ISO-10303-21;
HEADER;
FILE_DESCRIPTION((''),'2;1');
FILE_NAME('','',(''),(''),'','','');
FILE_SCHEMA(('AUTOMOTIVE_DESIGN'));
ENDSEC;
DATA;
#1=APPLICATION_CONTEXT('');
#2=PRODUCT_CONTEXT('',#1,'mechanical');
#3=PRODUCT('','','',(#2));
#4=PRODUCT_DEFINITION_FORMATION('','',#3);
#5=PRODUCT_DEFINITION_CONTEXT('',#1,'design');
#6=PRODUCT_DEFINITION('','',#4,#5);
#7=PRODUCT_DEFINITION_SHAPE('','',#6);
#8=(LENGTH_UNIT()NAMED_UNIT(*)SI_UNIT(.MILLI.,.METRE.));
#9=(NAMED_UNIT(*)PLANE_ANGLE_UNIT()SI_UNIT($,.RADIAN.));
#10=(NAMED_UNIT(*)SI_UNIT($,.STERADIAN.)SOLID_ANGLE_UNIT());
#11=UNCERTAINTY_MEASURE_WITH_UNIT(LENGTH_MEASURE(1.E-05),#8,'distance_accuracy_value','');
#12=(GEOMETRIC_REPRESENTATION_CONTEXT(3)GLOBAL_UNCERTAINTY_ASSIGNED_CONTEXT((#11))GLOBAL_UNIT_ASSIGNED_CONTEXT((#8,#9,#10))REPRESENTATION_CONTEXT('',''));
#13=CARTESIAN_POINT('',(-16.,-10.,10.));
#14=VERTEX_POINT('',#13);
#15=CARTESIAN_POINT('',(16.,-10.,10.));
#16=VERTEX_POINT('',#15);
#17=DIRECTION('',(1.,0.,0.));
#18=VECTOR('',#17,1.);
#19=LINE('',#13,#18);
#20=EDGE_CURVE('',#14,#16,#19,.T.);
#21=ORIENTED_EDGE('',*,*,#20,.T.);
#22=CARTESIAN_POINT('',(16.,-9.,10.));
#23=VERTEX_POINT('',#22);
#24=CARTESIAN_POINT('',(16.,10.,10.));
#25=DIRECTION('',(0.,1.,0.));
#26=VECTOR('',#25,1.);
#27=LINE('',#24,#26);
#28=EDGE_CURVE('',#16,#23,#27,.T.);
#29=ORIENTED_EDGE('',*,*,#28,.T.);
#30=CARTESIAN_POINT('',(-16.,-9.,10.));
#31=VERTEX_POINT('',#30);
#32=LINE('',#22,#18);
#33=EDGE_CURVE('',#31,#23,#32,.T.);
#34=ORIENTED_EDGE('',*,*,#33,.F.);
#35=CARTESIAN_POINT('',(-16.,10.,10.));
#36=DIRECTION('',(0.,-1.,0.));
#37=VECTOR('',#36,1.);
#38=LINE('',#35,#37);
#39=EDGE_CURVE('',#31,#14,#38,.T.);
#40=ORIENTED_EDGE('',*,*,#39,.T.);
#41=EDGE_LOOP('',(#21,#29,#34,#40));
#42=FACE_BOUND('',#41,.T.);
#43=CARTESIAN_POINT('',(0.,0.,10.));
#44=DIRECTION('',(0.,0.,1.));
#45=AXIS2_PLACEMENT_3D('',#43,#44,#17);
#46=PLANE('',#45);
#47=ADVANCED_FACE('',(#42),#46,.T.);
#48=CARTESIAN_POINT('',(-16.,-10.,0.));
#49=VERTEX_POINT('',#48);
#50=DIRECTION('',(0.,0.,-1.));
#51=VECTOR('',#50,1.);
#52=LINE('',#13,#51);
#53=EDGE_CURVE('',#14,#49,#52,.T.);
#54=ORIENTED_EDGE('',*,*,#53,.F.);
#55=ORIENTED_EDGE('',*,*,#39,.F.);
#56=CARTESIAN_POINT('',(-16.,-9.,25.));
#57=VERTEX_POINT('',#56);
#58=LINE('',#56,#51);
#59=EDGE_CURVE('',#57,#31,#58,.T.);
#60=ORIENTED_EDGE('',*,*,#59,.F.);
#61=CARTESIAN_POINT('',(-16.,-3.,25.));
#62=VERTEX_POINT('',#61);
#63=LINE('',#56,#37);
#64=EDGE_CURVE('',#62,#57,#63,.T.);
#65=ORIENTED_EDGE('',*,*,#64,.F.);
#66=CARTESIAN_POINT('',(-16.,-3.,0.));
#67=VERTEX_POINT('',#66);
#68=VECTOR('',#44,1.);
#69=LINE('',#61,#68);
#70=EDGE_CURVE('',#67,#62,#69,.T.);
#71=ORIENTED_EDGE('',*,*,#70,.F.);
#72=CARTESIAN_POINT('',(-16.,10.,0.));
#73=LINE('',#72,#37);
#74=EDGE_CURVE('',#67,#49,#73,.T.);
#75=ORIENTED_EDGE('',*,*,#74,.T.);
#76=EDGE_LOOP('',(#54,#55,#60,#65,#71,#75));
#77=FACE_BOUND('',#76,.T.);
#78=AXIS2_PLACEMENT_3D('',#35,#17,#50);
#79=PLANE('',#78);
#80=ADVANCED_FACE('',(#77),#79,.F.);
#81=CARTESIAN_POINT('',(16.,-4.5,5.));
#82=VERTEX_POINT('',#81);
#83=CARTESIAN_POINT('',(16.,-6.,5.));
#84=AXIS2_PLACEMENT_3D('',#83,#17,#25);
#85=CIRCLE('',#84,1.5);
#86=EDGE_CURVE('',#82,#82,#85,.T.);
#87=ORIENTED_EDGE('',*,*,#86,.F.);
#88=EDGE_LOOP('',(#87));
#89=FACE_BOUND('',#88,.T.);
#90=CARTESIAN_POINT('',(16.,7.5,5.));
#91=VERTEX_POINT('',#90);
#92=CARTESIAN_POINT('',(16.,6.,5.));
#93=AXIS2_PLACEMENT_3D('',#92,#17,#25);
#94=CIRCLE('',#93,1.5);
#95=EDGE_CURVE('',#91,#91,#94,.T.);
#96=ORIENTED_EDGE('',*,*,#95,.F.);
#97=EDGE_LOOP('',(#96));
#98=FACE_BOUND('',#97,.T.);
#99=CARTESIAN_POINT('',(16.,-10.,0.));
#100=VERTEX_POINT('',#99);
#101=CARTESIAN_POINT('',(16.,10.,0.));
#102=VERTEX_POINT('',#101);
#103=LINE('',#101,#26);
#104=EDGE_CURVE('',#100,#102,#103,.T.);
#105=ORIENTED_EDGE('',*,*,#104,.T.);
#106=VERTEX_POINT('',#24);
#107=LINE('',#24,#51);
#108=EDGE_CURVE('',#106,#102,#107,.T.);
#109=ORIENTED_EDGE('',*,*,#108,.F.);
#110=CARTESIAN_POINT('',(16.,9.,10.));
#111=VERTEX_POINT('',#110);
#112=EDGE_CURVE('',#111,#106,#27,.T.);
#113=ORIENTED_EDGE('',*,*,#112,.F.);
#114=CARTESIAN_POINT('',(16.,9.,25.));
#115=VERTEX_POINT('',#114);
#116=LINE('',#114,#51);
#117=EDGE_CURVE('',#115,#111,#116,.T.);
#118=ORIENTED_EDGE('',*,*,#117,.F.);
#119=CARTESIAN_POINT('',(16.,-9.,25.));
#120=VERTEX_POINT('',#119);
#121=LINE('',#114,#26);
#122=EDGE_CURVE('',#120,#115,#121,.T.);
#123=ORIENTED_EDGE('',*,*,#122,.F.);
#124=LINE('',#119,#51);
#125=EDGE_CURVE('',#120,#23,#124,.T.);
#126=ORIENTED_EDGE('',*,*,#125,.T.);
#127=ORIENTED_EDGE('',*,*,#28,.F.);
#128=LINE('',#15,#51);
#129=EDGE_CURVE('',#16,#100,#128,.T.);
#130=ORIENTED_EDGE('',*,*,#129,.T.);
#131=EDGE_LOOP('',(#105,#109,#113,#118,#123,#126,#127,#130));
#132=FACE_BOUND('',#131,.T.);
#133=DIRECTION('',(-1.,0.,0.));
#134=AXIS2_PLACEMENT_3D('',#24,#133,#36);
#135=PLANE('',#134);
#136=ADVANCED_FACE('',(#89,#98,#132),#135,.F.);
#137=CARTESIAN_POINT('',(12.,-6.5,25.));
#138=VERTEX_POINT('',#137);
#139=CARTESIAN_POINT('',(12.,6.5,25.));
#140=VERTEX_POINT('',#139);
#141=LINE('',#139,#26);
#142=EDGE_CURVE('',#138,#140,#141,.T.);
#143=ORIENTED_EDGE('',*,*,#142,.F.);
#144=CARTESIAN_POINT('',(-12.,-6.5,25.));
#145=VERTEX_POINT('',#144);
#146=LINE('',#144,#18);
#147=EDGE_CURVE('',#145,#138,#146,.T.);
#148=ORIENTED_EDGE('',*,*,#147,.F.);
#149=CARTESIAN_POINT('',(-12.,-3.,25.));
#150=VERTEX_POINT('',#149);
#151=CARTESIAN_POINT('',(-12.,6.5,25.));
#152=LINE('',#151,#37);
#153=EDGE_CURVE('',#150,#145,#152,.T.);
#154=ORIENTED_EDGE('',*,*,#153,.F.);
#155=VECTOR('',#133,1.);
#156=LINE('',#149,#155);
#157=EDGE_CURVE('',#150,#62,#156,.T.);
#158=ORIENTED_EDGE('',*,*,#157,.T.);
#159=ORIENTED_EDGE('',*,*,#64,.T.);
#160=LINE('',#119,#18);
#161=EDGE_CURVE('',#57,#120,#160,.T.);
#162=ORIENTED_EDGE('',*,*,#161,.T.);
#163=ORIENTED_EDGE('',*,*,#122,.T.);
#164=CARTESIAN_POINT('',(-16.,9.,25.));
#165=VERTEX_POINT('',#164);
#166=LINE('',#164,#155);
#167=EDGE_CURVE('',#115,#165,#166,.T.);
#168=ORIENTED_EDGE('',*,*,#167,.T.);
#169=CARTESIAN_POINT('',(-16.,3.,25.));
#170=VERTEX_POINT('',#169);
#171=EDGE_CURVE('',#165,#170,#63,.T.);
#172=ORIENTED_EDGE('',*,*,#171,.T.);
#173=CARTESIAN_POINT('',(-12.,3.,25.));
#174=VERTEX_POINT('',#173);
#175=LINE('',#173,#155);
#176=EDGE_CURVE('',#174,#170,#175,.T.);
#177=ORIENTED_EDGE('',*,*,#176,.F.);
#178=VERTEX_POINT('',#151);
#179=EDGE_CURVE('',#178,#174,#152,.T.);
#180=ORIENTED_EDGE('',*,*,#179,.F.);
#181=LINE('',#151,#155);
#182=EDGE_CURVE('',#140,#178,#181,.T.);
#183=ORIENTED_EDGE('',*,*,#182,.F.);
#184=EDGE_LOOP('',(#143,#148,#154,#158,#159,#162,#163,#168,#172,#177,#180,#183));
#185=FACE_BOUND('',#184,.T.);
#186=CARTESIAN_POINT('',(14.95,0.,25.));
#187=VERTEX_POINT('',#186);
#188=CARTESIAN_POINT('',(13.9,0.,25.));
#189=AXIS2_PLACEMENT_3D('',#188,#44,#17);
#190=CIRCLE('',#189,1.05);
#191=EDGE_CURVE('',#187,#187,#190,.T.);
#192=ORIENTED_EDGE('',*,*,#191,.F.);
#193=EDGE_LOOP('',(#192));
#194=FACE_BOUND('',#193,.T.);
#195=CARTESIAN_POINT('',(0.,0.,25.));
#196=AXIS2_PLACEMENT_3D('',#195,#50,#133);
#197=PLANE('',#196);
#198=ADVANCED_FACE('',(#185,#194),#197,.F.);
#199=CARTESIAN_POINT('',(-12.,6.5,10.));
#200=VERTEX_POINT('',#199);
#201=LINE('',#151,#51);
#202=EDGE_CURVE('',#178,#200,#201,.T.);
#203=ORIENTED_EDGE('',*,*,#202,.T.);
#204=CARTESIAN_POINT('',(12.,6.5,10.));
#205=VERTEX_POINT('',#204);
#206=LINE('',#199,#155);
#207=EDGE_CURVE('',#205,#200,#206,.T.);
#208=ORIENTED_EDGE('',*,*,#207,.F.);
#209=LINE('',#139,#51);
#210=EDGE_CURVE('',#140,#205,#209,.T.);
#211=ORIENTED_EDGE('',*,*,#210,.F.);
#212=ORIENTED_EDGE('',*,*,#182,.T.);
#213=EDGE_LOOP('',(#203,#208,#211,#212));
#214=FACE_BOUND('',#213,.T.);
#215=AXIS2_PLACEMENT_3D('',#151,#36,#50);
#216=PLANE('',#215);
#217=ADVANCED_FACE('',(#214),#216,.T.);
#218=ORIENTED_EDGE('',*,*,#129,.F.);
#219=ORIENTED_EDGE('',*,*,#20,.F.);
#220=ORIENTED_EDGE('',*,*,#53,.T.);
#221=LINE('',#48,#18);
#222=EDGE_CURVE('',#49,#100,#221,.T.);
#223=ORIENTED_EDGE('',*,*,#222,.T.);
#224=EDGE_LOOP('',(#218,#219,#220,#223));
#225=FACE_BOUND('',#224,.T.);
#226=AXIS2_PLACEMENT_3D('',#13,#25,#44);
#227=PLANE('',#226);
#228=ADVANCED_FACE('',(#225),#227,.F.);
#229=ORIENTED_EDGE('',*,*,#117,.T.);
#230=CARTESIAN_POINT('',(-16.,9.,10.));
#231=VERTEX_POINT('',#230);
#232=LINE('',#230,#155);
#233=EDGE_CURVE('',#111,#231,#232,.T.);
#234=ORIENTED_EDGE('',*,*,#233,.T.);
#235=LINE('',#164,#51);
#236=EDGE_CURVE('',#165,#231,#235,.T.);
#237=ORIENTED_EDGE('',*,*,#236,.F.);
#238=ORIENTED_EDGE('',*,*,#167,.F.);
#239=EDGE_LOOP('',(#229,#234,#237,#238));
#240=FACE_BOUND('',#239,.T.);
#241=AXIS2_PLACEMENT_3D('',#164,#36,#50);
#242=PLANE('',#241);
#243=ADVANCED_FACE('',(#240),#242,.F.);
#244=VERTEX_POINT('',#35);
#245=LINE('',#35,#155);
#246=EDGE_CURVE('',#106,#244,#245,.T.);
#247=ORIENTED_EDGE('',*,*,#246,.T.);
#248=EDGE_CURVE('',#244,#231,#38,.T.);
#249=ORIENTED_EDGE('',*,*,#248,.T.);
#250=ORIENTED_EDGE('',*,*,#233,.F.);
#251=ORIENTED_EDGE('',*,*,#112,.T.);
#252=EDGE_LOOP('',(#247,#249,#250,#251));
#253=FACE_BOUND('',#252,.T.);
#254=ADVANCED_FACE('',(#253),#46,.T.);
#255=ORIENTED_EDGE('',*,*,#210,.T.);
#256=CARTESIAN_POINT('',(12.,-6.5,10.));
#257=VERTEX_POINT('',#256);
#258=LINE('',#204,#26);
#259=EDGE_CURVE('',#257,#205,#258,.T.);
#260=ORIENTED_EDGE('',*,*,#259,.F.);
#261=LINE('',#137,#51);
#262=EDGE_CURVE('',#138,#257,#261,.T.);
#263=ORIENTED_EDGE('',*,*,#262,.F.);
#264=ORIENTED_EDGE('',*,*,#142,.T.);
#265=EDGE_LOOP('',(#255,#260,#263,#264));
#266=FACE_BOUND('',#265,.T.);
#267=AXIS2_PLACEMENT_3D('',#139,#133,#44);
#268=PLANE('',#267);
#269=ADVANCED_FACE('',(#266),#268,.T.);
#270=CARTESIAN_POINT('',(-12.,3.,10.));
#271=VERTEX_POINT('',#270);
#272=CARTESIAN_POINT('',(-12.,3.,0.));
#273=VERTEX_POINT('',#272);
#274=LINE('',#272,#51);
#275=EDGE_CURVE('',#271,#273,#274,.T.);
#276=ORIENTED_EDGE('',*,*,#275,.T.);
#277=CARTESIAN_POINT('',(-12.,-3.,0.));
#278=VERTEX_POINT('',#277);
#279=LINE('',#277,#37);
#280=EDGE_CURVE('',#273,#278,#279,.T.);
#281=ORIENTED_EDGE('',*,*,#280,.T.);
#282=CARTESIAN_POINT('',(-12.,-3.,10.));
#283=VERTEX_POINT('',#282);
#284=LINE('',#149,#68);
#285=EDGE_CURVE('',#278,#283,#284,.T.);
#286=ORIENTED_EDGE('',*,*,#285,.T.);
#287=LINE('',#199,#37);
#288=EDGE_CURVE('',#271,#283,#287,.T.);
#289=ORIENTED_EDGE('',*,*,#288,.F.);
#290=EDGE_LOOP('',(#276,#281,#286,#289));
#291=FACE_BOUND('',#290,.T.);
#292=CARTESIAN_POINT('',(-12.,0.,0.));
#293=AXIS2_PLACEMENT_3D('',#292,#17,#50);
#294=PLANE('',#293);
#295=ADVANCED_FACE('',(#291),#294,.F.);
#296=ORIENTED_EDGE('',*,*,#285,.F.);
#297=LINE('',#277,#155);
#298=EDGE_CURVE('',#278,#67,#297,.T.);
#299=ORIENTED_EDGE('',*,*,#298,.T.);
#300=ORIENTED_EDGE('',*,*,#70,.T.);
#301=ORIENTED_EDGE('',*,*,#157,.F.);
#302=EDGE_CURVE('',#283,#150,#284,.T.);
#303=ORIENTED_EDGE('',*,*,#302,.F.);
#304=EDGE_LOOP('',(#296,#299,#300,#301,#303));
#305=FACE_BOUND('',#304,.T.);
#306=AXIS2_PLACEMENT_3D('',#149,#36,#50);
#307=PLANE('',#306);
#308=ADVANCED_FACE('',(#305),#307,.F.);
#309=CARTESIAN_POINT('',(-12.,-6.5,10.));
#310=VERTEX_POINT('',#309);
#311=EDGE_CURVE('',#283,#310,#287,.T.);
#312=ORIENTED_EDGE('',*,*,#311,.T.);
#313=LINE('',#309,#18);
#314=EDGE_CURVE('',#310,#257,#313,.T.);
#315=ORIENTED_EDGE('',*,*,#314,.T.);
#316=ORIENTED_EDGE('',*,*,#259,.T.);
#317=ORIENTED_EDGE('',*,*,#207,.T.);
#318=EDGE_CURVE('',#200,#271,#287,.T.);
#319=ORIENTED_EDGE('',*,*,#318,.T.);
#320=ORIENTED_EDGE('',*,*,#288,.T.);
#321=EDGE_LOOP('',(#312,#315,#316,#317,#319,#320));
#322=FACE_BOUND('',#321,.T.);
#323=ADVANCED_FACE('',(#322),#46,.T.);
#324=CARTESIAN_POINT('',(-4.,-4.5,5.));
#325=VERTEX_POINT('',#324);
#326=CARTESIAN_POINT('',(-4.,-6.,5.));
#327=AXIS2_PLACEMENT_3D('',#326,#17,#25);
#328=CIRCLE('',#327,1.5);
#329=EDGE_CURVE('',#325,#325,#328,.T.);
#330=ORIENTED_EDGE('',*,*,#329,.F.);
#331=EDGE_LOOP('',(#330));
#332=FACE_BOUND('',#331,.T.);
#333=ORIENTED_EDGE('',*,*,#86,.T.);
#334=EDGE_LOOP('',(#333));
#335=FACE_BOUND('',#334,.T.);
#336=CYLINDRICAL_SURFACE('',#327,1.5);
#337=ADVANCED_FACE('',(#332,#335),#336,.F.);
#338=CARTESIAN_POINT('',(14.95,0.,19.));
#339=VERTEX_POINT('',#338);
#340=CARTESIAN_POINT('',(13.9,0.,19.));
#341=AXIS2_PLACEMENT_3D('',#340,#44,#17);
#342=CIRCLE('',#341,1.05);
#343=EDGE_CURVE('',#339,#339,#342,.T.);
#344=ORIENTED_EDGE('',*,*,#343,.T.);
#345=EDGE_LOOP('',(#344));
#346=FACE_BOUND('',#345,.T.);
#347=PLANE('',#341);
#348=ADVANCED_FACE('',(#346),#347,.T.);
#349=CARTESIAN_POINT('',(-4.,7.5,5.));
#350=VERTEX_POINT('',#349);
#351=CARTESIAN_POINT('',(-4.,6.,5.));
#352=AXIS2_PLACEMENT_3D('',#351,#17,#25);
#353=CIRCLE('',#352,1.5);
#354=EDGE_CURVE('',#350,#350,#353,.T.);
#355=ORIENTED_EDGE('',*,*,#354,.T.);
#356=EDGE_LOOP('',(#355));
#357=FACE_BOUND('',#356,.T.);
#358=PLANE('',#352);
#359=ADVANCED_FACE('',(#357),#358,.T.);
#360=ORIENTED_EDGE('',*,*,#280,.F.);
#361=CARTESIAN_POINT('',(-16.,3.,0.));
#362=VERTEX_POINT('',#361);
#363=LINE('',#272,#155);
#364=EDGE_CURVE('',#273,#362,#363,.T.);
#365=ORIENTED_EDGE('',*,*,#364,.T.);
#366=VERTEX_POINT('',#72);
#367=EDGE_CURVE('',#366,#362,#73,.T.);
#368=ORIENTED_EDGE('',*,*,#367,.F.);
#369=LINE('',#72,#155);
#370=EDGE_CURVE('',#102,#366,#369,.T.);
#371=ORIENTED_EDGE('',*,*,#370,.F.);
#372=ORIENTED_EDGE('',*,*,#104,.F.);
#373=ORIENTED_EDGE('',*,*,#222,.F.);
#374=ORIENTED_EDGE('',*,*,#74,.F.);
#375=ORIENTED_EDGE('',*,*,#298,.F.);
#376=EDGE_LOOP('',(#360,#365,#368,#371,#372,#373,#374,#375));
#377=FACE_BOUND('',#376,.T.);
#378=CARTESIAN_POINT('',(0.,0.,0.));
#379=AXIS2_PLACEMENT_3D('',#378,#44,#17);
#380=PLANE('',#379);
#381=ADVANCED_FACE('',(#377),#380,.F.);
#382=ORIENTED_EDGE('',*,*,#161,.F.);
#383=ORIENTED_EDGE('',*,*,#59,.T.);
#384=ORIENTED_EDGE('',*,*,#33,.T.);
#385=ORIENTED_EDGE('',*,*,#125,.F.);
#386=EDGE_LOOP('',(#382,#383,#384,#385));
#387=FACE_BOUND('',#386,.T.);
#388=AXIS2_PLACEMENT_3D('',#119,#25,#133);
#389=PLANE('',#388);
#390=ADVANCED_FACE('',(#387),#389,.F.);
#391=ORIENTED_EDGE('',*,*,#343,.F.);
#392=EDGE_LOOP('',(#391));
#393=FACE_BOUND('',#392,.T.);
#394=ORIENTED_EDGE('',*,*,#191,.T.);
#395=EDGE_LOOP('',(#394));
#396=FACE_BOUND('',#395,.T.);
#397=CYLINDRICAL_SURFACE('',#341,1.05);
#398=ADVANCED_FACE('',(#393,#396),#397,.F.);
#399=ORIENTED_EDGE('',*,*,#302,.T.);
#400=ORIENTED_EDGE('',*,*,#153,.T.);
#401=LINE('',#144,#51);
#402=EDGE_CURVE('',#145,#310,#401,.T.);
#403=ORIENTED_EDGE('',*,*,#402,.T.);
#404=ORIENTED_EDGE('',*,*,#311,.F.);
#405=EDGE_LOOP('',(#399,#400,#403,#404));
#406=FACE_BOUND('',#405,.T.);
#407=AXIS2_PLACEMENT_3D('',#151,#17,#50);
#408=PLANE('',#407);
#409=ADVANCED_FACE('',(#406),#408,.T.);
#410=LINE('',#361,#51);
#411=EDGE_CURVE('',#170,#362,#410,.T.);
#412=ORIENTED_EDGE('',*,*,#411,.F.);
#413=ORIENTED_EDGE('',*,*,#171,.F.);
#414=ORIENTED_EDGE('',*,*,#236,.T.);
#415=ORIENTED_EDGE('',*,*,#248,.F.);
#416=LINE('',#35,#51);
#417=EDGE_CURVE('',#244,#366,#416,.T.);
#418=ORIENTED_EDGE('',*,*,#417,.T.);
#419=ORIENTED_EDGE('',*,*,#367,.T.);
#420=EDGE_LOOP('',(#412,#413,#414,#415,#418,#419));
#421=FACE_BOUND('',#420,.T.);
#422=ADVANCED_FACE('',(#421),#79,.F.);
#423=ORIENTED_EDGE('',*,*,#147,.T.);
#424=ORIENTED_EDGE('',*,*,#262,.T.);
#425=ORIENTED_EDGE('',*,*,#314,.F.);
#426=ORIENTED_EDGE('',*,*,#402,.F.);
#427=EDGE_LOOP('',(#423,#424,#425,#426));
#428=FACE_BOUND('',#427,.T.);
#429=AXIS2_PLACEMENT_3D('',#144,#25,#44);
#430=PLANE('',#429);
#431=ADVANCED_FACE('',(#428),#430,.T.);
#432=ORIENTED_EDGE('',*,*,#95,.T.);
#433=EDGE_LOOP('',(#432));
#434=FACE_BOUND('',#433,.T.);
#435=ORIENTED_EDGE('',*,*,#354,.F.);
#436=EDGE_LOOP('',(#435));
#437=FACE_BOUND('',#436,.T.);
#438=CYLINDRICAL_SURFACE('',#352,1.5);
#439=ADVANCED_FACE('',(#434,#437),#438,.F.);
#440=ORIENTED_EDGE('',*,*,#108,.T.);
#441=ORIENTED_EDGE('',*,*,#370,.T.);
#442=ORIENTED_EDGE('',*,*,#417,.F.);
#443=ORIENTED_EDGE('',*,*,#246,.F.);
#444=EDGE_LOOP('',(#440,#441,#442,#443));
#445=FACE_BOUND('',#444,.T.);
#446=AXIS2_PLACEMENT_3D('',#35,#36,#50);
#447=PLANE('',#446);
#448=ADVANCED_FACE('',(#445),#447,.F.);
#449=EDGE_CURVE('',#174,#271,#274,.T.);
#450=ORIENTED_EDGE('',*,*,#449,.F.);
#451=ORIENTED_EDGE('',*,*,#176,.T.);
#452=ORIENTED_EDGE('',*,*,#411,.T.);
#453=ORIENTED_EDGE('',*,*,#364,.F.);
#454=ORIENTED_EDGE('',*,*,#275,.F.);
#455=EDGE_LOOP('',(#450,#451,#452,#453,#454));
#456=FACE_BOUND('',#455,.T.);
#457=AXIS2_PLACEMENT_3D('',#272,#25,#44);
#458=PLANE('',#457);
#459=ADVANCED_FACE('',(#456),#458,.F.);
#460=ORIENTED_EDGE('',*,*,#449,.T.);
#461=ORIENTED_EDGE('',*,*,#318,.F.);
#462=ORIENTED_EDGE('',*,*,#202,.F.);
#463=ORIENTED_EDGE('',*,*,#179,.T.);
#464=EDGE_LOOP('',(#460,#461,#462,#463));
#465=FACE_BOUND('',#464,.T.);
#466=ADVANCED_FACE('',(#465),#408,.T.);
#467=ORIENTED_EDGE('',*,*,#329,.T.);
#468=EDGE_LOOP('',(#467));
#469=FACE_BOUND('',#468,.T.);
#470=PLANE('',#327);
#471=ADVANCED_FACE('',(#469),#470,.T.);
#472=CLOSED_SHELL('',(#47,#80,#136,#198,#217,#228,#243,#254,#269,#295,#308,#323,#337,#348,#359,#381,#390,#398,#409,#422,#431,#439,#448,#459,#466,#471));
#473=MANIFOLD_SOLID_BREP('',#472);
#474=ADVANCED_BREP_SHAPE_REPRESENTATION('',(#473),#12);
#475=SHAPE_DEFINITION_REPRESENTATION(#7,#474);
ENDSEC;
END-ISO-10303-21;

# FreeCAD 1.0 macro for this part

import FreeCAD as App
import Part
import Sketcher
from FreeCAD import Vector


def add_polygon(sketch, points):
    """Adds a closed chain of lines whose ends are joined by coincident constraints."""
    first, n = sketch.GeometryCount, len(points)
    for a, b in zip(points, points[1:] + points[:1]):
        sketch.addGeometry(Part.LineSegment(App.Vector(*a, 0), App.Vector(*b, 0)), False)
    for i in range(n):
        sketch.addConstraint(Sketcher.Constraint("Coincident", first + i, 2, first + (i + 1) % n, 1))

doc = App.newDocument("Part")
body = doc.addObject("PartDesign::Body", "Body")

sketch1 = body.newObject("Sketcher::SketchObject", "Sketch")
sketch1.AttachmentSupport = (doc.getObject("XY_Plane"), [""])
sketch1.MapMode = "FlatFace"
add_polygon(sketch1, [(-16, 10), (-16, -10), (16, -10), (16, 10)])
sketch1.addConstraint([
    Sketcher.Constraint("Vertical", 0),
    Sketcher.Constraint("Horizontal", 1),
    Sketcher.Constraint("Vertical", 2),
    Sketcher.Constraint("Horizontal", 3),
    Sketcher.Constraint("Symmetric", 0, 2, 2, 2, -1, 1),
    Sketcher.Constraint("DistanceX", 1, 1, 1, 2, 32.0),
    Sketcher.Constraint("DistanceY", 0, 2, 0, 1, 20.0),
])
pad1 = body.newObject("PartDesign::Pad", "Pad")
pad1.Profile = sketch1
pad1.Length = 10

sketch2 = body.newObject("Sketcher::SketchObject", "Sketch001")
sketch2.AttachmentSupport = (doc.getObject("XY_Plane"), [""])
sketch2.MapMode = "FlatFace"
sketch2.AttachmentOffset = App.Placement(Vector(0, 0, 10), App.Rotation())
add_polygon(sketch2, [(-16, 9), (-16, -9), (16, -9), (16, 9)])
add_polygon(sketch2, [(12, -6), (-12, -6), (-12, 6), (12, 6)])
sketch2.addConstraint([
    Sketcher.Constraint("Vertical", 0),
    Sketcher.Constraint("Horizontal", 1),
    Sketcher.Constraint("Vertical", 2),
    Sketcher.Constraint("Horizontal", 3),
    Sketcher.Constraint("Horizontal", 4),
    Sketcher.Constraint("Vertical", 5),
    Sketcher.Constraint("Horizontal", 6),
    Sketcher.Constraint("Vertical", 7),
    Sketcher.Constraint("Symmetric", 0, 2, 2, 2, -1, 1),
    Sketcher.Constraint("Symmetric", 4, 2, 6, 2, -1, 1),
    Sketcher.Constraint("DistanceX", 1, 1, 1, 2, 32.0),
    Sketcher.Constraint("DistanceX", 4, 2, 4, 1, 24.0),
    Sketcher.Constraint("DistanceY", 0, 2, 0, 1, 18.0),
    Sketcher.Constraint("DistanceY", 5, 1, 5, 2, 13.0),
])
pad2 = body.newObject("PartDesign::Pad", "Pad001")
pad2.Profile = sketch2
pad2.Length = 15

sketch3 = body.newObject("Sketcher::SketchObject", "Sketch002")
sketch3.AttachmentSupport = (doc.getObject("YZ_Plane"), [""])
sketch3.MapMode = "FlatFace"
sketch3.AttachmentOffset = App.Placement(Vector(0, 0, -16), App.Rotation())
add_polygon(sketch3, [(3, 0), (-3, 0), (-3, 25), (3, 25)])
sketch3.addConstraint([
    Sketcher.Constraint("Horizontal", 0),
    Sketcher.Constraint("Vertical", 1),
    Sketcher.Constraint("Horizontal", 2),
    Sketcher.Constraint("Vertical", 3),
    Sketcher.Constraint("Symmetric", 0, 2, 3, 2, -1, 1),
    Sketcher.Constraint("DistanceX", 0, 2, 0, 1, 6.0),
    Sketcher.Constraint("DistanceY", 1, 1, 1, 2, 25.0),
])
pocket1 = body.newObject("PartDesign::Pocket", "Pocket")
pocket1.Profile = sketch3
pocket1.Length = 4
pocket1.Reversed = True

sketch4 = body.newObject("Sketcher::SketchObject", "Sketch003")
sketch4.AttachmentSupport = (doc.getObject("XY_Plane"), [""])
sketch4.MapMode = "FlatFace"
sketch4.AttachmentOffset = App.Placement(Vector(0, 0, 25), App.Rotation())
sketch4.addGeometry(Part.Circle(Vector(13.9, 0, 0), Vector(0, 0, 1), 1.1), False)
sketch4.addConstraint([
    Sketcher.Constraint("PointOnObject", 0, 3, -1),
    Sketcher.Constraint("Diameter", 0, 2.1),
    Sketcher.Constraint("DistanceX", -1, 1, 0, 3, 13.9),
])
pocket2 = body.newObject("PartDesign::Pocket", "Pocket001")
pocket2.Profile = sketch4
pocket2.Length = 6

sketch5 = body.newObject("Sketcher::SketchObject", "Sketch004")
sketch5.AttachmentSupport = (doc.getObject("YZ_Plane"), [""])
sketch5.MapMode = "FlatFace"
sketch5.AttachmentOffset = App.Placement(Vector(0, 0, 16), App.Rotation())
sketch5.addGeometry([
    Part.Circle(Vector(6, 5, 0), Vector(0, 0, 1), 1.5),
    Part.Circle(Vector(-6, 5, 0), Vector(0, 0, 1), 1.5),
], False)
sketch5.addConstraint([
    Sketcher.Constraint("Equal", 0, 1),
    Sketcher.Constraint("Symmetric", 0, 3, 1, 3, -2),
    Sketcher.Constraint("Diameter", 0, 3.0),
    Sketcher.Constraint("DistanceX", -1, 1, 0, 3, 6.0),
    Sketcher.Constraint("DistanceY", -1, 1, 0, 3, 5.0),
])
pocket3 = body.newObject("PartDesign::Pocket", "Pocket002")
pocket3.Profile = sketch5
pocket3.Length = 20

doc.recompute()
